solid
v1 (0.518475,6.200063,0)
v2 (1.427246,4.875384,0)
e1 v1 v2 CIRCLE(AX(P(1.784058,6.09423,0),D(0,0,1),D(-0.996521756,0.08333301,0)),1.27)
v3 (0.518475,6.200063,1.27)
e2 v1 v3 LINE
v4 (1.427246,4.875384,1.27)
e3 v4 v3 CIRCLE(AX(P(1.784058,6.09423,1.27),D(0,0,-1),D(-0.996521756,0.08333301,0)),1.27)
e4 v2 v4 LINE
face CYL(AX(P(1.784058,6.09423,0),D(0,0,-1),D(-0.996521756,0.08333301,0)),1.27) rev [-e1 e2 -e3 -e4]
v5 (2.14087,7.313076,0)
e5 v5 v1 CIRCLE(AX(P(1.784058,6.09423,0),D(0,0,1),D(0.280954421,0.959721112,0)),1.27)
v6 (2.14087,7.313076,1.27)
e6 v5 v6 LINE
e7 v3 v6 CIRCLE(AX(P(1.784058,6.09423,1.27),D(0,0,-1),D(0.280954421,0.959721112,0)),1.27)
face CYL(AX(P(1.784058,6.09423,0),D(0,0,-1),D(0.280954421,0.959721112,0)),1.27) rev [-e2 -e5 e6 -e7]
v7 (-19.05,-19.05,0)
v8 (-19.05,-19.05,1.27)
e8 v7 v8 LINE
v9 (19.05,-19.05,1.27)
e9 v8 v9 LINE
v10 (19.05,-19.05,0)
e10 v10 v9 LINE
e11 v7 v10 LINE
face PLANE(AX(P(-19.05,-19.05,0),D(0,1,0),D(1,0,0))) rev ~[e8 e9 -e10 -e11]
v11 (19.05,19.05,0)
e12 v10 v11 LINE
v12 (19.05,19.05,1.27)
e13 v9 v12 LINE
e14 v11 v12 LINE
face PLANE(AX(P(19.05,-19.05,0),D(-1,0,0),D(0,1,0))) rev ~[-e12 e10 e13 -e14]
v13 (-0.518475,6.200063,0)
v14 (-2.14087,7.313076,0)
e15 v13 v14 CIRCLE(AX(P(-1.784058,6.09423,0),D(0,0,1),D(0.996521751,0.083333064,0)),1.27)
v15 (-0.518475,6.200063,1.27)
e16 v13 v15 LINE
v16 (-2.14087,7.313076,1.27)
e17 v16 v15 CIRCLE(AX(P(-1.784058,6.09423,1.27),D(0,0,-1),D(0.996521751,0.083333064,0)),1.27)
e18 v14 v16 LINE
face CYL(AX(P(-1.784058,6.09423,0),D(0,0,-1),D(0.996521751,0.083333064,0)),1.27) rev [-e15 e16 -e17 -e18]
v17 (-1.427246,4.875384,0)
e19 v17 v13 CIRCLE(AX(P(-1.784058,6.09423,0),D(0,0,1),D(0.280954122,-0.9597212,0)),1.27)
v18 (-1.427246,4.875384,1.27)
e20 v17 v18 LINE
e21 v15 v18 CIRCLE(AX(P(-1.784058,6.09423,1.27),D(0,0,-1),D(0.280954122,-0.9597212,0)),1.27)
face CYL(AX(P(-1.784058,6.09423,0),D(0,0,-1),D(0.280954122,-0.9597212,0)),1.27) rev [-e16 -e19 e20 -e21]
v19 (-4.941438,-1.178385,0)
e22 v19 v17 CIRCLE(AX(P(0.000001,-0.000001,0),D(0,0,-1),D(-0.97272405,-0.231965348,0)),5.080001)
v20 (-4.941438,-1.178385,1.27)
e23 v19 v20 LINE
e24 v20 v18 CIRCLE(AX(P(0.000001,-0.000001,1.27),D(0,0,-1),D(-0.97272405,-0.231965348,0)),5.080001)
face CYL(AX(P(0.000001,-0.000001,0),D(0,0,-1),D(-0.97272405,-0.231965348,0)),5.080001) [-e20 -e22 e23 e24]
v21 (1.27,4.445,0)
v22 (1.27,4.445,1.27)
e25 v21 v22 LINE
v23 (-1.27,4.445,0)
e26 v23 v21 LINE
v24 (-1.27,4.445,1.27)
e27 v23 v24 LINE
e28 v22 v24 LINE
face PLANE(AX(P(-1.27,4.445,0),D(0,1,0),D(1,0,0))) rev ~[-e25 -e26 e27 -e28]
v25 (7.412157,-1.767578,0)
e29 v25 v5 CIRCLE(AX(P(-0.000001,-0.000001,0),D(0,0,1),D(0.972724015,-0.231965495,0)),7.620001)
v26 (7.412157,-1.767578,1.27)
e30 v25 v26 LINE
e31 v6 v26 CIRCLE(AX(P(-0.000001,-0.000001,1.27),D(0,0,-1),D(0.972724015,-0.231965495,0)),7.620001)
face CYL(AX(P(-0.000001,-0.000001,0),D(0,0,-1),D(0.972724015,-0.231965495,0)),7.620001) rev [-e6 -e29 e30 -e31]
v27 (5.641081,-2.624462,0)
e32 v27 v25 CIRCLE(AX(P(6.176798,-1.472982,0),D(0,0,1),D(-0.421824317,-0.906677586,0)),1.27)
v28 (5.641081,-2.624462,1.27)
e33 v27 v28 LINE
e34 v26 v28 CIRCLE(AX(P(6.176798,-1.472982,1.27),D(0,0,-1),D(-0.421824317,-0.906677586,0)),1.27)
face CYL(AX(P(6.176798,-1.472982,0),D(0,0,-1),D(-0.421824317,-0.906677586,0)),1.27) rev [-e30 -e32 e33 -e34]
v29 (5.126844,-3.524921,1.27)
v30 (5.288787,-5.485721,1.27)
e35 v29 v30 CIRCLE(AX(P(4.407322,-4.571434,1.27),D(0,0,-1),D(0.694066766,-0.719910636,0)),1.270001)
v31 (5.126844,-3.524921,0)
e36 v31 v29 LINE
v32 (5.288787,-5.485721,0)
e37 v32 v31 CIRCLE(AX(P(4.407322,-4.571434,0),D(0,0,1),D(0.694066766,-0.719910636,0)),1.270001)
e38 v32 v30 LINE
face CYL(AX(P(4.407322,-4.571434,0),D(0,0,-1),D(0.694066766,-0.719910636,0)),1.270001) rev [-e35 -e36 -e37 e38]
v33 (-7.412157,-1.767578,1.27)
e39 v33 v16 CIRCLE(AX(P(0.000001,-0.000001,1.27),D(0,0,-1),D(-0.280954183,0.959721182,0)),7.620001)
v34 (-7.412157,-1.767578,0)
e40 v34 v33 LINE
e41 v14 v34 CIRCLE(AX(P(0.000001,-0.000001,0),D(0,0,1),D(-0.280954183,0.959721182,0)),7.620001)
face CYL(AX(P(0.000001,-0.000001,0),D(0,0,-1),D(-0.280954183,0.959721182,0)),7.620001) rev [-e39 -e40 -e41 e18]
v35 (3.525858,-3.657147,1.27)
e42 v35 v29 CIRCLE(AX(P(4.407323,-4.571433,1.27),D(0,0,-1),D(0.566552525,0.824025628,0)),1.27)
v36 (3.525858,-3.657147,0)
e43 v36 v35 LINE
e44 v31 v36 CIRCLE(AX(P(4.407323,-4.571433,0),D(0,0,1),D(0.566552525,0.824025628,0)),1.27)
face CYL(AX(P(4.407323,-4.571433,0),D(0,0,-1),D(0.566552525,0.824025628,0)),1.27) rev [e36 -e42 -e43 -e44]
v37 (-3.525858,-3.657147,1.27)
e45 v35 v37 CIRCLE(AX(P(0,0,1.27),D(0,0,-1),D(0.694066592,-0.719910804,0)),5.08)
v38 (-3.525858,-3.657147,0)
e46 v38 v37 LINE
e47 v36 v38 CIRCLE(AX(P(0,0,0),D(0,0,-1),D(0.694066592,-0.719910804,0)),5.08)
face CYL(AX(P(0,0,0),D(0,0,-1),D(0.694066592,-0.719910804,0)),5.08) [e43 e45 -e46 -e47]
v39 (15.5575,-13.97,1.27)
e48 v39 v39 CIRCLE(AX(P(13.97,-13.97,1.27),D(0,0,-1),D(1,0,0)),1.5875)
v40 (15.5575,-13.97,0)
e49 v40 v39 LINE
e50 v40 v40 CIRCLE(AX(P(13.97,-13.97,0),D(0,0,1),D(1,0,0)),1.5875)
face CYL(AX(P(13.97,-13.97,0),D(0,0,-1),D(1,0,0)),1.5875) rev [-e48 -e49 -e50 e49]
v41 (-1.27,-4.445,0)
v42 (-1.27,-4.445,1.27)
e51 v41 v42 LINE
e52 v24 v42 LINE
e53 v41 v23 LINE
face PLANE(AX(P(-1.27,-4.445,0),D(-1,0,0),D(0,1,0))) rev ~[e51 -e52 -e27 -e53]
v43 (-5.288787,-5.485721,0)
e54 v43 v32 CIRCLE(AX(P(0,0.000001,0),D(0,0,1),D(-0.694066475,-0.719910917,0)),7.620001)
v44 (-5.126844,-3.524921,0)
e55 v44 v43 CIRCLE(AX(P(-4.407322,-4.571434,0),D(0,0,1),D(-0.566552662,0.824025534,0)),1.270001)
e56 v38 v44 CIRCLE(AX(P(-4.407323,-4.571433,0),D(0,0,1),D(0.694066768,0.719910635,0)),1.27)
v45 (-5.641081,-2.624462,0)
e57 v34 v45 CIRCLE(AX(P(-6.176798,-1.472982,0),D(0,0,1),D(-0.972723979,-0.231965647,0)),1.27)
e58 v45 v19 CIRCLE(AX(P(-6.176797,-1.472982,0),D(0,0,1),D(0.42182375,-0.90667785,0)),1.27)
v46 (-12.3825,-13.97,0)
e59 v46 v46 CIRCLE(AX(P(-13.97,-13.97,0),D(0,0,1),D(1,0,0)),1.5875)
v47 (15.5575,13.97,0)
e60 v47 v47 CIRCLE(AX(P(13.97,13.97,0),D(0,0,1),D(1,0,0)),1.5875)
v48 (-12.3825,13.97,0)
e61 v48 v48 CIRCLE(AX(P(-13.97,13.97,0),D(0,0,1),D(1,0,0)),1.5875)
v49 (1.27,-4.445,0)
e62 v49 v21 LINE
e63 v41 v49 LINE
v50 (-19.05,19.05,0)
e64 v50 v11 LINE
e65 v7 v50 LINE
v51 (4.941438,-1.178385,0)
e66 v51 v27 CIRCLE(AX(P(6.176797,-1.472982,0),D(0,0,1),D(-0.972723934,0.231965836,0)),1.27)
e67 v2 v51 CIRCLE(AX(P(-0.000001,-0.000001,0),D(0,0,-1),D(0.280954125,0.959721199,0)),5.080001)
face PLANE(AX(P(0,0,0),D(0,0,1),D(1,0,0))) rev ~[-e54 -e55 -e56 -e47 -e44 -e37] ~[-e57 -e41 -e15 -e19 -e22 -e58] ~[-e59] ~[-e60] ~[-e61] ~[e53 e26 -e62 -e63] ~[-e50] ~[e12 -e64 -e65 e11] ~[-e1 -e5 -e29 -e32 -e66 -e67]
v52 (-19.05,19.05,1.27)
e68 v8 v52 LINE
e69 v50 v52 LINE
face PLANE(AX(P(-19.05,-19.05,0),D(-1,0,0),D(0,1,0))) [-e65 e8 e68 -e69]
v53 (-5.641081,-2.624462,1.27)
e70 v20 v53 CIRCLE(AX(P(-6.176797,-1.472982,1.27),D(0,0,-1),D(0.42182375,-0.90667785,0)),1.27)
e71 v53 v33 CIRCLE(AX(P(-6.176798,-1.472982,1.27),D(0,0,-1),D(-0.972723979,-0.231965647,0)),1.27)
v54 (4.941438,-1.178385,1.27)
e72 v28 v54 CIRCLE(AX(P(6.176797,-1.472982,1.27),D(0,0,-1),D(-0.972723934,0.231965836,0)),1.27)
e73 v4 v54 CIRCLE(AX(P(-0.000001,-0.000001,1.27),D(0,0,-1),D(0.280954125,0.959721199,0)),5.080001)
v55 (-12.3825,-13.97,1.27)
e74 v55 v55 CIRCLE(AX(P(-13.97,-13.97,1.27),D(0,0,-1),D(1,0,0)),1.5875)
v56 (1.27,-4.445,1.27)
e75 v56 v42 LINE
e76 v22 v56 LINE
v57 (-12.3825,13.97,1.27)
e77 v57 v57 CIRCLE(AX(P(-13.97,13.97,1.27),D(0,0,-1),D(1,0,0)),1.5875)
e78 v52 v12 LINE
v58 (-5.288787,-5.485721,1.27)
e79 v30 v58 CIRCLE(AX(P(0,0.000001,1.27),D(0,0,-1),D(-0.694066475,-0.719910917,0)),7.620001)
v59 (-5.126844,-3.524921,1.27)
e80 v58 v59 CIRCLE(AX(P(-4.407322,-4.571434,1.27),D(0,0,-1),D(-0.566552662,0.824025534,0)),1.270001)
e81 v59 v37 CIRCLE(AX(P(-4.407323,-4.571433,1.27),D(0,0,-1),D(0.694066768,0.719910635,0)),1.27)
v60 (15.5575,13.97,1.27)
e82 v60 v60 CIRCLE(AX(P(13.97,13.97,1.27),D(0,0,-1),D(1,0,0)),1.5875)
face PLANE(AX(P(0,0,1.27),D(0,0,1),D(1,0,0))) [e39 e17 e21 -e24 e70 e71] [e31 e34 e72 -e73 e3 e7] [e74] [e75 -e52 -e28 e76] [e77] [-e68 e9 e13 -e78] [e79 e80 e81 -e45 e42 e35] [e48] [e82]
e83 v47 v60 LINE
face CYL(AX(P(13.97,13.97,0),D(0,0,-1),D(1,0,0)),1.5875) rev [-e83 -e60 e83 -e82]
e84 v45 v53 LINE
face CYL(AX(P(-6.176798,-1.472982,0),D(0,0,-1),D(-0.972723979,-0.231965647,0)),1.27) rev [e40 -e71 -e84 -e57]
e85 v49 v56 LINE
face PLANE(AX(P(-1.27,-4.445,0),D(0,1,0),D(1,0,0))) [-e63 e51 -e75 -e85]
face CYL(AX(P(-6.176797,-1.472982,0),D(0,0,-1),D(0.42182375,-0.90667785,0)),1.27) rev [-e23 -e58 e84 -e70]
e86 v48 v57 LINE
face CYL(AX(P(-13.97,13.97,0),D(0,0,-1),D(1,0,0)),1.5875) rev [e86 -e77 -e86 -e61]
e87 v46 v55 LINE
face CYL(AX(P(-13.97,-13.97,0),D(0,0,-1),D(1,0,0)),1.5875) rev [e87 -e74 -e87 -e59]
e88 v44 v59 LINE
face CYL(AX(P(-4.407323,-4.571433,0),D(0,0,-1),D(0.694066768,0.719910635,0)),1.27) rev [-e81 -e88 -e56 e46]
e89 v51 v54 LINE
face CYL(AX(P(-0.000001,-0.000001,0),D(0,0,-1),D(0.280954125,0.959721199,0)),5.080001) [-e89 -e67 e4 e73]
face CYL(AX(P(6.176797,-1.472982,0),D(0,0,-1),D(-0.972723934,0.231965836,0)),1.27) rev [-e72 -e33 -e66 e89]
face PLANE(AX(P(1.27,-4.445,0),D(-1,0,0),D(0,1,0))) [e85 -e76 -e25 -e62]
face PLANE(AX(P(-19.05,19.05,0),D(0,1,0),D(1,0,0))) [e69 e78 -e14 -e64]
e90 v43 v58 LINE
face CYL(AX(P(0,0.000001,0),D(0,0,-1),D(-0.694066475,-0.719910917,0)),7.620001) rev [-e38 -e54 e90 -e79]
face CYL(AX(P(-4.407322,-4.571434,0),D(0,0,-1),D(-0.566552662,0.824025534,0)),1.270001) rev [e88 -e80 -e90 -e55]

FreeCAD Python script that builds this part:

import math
import FreeCAD as App
import Part
import Sketcher
Q = App.Units.Quantity

doc = App.newDocument("Part")
body = doc.addObject("PartDesign::Body", "Body")

# Sketch on XY plane
sketch1 = body.newObject("Sketcher::SketchObject", "Sketch")
sketch1.AttachmentSupport = (doc.getObject("XY_Plane"), [""])
sketch1.MapMode = "FlatFace"
sketch1.addGeometry(Part.LineSegment(App.Vector(-19.05, 19.05, 0), App.Vector(-19.05, -19.05, 0)), False)
sketch1.addGeometry(Part.LineSegment(App.Vector(-19.05, -19.05, 0), App.Vector(19.05, -19.05, 0)), False)
sketch1.addGeometry(Part.LineSegment(App.Vector(19.05, -19.05, 0), App.Vector(19.05, 19.05, 0)), False)
sketch1.addGeometry(Part.LineSegment(App.Vector(19.05, 19.05, 0), App.Vector(-19.05, 19.05, 0)), False)
sketch1.addConstraint(Sketcher.Constraint("Coincident", 0, 2, 1, 1))
sketch1.addConstraint(Sketcher.Constraint("Coincident", 1, 2, 2, 1))
sketch1.addConstraint(Sketcher.Constraint("Coincident", 2, 2, 3, 1))
sketch1.addConstraint(Sketcher.Constraint("Coincident", 3, 2, 0, 1))
sketch1.addConstraint(Sketcher.Constraint("Vertical", 0))
sketch1.addConstraint(Sketcher.Constraint("Horizontal", 1))
sketch1.addConstraint(Sketcher.Constraint("Vertical", 2))
sketch1.addConstraint(Sketcher.Constraint("Horizontal", 3))
sketch1.addConstraint(Sketcher.Constraint("Symmetric", 0, 2, 2, 2, -1, 1))
sketch1.addConstraint(Sketcher.Constraint("Equal", 3, 0))
sketch1.addConstraint(Sketcher.Constraint("DistanceX", 1, 1, 1, 2, Q("1.5 in")))
pad1 = body.newObject("PartDesign::Pad", "Pad")
pad1.Profile = sketch1
pad1.Length = Q("0.05 in")

# Sketch on XY plane
sketch2 = body.newObject("Sketcher::SketchObject", "Sketch001")
sketch2.AttachmentSupport = (doc.getObject("XY_Plane"), [""])
sketch2.MapMode = "FlatFace"
sketch2.addGeometry(Part.ArcOfCircle(Part.Circle(App.Vector(-1.784058, 6.09423, 0), App.Vector(0, 0, 1), 1.27), math.radians(4.780176), math.radians(106.317176)), False)
sketch2.addGeometry(Part.ArcOfCircle(Part.Circle(App.Vector(0.000001, -0.000001, 0), App.Vector(0, 0, 1), 7.620001), math.radians(106.317162), math.radians(193.412816)), False)
sketch2.addGeometry(Part.ArcOfCircle(Part.Circle(App.Vector(-6.176798, -1.472982, 0), App.Vector(0, 0, 1), 1.27), math.radians(-166.587175), math.radians(-65.050182)), False)
sketch2.addGeometry(Part.ArcOfCircle(Part.Circle(App.Vector(-6.176797, -1.472982, 0), App.Vector(0, 0, 1), 1.27), math.radians(-65.050218), math.radians(13.412836)), False)
sketch2.addGeometry(Part.ArcOfCircle(Part.Circle(App.Vector(0.000001, -0.000001, 0), App.Vector(0, 0, 1), 5.080001), math.radians(106.317158), math.radians(193.412808)), False)
sketch2.addGeometry(Part.ArcOfCircle(Part.Circle(App.Vector(-1.784058, 6.09423, 0), App.Vector(0, 0, 1), 1.27), math.radians(-73.682842), math.radians(4.780173)), False)
sketch2.addGeometry(Part.ArcOfCircle(Part.Circle(App.Vector(6.176798, -1.472982, 0), App.Vector(0, 0, 1), 1.27), math.radians(-114.949818), math.radians(-13.412825)), False)
sketch2.addGeometry(Part.ArcOfCircle(Part.Circle(App.Vector(-0.000001, -0.000001, 0), App.Vector(0, 0, 1), 7.620001), math.radians(-13.412816), math.radians(73.682838)), False)
sketch2.addGeometry(Part.ArcOfCircle(Part.Circle(App.Vector(1.784058, 6.09423, 0), App.Vector(0, 0, 1), 1.27), math.radians(73.682824), math.radians(175.219824)), False)
sketch2.addGeometry(Part.ArcOfCircle(Part.Circle(App.Vector(1.784058, 6.09423, 0), App.Vector(0, 0, 1), 1.27), math.radians(175.219827), math.radians(253.682842)), False)
sketch2.addGeometry(Part.ArcOfCircle(Part.Circle(App.Vector(-0.000001, -0.000001, 0), App.Vector(0, 0, 1), 5.080001), math.radians(-13.412808), math.radians(73.682842)), False)
sketch2.addGeometry(Part.ArcOfCircle(Part.Circle(App.Vector(6.176797, -1.472982, 0), App.Vector(0, 0, 1), 1.27), math.radians(166.587164), math.radians(245.050218)), False)
sketch2.addGeometry(Part.ArcOfCircle(Part.Circle(App.Vector(-4.407322, -4.571434, 0), App.Vector(0, 0, 1), 1.270001), math.radians(124.510181), math.radians(226.047103)), False)
sketch2.addGeometry(Part.ArcOfCircle(Part.Circle(App.Vector(0, 0.000001, 0), App.Vector(0, 0, 1), 7.620001), math.radians(-133.952874), math.radians(-46.047126)), False)
sketch2.addGeometry(Part.ArcOfCircle(Part.Circle(App.Vector(4.407322, -4.571434, 0), App.Vector(0, 0, 1), 1.270001), math.radians(-46.047103), math.radians(55.489819)), False)
sketch2.addGeometry(Part.ArcOfCircle(Part.Circle(App.Vector(4.407323, -4.571433, 0), App.Vector(0, 0, 1), 1.27), math.radians(55.489829), math.radians(133.952897)), False)
sketch2.addGeometry(Part.ArcOfCircle(Part.Circle(App.Vector(0, 0, 0), App.Vector(0, 0, 1), 5.08), math.radians(-133.952883), math.radians(-46.047117)), False)
sketch2.addGeometry(Part.ArcOfCircle(Part.Circle(App.Vector(-4.407323, -4.571433, 0), App.Vector(0, 0, 1), 1.27), math.radians(46.047103), math.radians(124.510171)), False)
sketch2.addConstraint(Sketcher.Constraint("Tangent", 0, 2, 1, 1))
sketch2.addConstraint(Sketcher.Constraint("Tangent", 1, 2, 2, 1))
sketch2.addConstraint(Sketcher.Constraint("Tangent", 2, 2, 3, 1))
sketch2.addConstraint(Sketcher.Constraint("Tangent", 3, 2, 4, 2))
sketch2.addConstraint(Sketcher.Constraint("Tangent", 4, 1, 5, 1))
sketch2.addConstraint(Sketcher.Constraint("Tangent", 5, 2, 0, 1))
sketch2.addConstraint(Sketcher.Constraint("Tangent", 6, 2, 7, 1))
sketch2.addConstraint(Sketcher.Constraint("Tangent", 7, 2, 8, 1))
sketch2.addConstraint(Sketcher.Constraint("Tangent", 8, 2, 9, 1))
sketch2.addConstraint(Sketcher.Constraint("Tangent", 9, 2, 10, 2))
sketch2.addConstraint(Sketcher.Constraint("Tangent", 10, 1, 11, 1))
sketch2.addConstraint(Sketcher.Constraint("Tangent", 11, 2, 6, 1))
sketch2.addConstraint(Sketcher.Constraint("Tangent", 12, 2, 13, 1))
sketch2.addConstraint(Sketcher.Constraint("Tangent", 13, 2, 14, 1))
sketch2.addConstraint(Sketcher.Constraint("Tangent", 14, 2, 15, 1))
sketch2.addConstraint(Sketcher.Constraint("Tangent", 15, 2, 16, 2))
sketch2.addConstraint(Sketcher.Constraint("Tangent", 16, 1, 17, 1))
sketch2.addConstraint(Sketcher.Constraint("Tangent", 17, 2, 12, 1))
sketch2.addConstraint(Sketcher.Constraint("Coincident", 1, 3, -1, 1))
sketch2.addConstraint(Sketcher.Constraint("Coincident", 4, 3, -1, 1))
sketch2.addConstraint(Sketcher.Constraint("Coincident", 7, 3, -1, 1))
sketch2.addConstraint(Sketcher.Constraint("Coincident", 10, 3, -1, 1))
sketch2.addConstraint(Sketcher.Constraint("Coincident", 13, 3, -1, 1))
sketch2.addConstraint(Sketcher.Constraint("Coincident", 16, 3, -1, 1))
sketch2.addConstraint(Sketcher.Constraint("Equal", 0, 2))
sketch2.addConstraint(Sketcher.Constraint("Equal", 2, 3))
sketch2.addConstraint(Sketcher.Constraint("Equal", 5, 6))
sketch2.addConstraint(Sketcher.Constraint("Equal", 1, 7))
sketch2.addConstraint(Sketcher.Constraint("Equal", 6, 8))
sketch2.addConstraint(Sketcher.Constraint("Equal", 8, 9))
sketch2.addConstraint(Sketcher.Constraint("Equal", 11, 12))
sketch2.addConstraint(Sketcher.Constraint("Equal", 7, 13))
sketch2.addConstraint(Sketcher.Constraint("Equal", 12, 14))
sketch2.addConstraint(Sketcher.Constraint("Equal", 14, 15))
sketch2.addConstraint(Sketcher.Constraint("Symmetric", 5, 2, 8, 2, -2))
sketch2.addConstraint(Sketcher.Constraint("Symmetric", 2, 2, 11, 2, -2))
sketch2.addConstraint(Sketcher.Constraint("Symmetric", 14, 2, 17, 2, -2))
sketch2.addConstraint(Sketcher.Constraint("Radius", 1, Q("0.3000001 in")))
sketch2.addConstraint(Sketcher.Constraint("Radius", 4, Q("0.2 in")))
sketch2.addConstraint(Sketcher.Constraint("DistanceX", 2, 3, 1, 3, Q("6.176799 mm")))
sketch2.addConstraint(Sketcher.Constraint("DistanceY", 13, 2, 14, 2, Q("1.9608 mm")))
sketch2.addConstraint(Sketcher.Constraint("DistanceY", -1, 1, 0, 3, Q("6.09423 mm")))
sketch2.addConstraint(Sketcher.Constraint("DistanceX", 12, 3, -1, 1, Q("4.407322 mm")))
sketch2.addConstraint(Sketcher.Constraint("DistanceX", 2, 2, -1, 1, Q("5.641081 mm")))
sketch2.addConstraint(Sketcher.Constraint("DistanceX", 4, 1, 5, 2, Q("0.908771 mm")))
pocket1 = body.newObject("PartDesign::Pocket", "Pocket")
pocket1.Profile = sketch2
pocket1.Length = Q("1 in")
pocket1.Reversed = True

# Sketch on XY plane
sketch3 = body.newObject("Sketcher::SketchObject", "Sketch002")
sketch3.AttachmentSupport = (doc.getObject("XY_Plane"), [""])
sketch3.MapMode = "FlatFace"
sketch3.addGeometry(Part.Circle(App.Vector(13.97, 13.97, 0), App.Vector(0, 0, 1), 1.5875), False)
sketch3.addGeometry(Part.Circle(App.Vector(13.97, -13.97, 0), App.Vector(0, 0, 1), 1.5875), False)
sketch3.addGeometry(Part.Circle(App.Vector(-13.97, -13.97, 0), App.Vector(0, 0, 1), 1.5875), False)
sketch3.addGeometry(Part.Circle(App.Vector(-13.97, 13.97, 0), App.Vector(0, 0, 1), 1.5875), False)
sketch3.addGeometry(Part.LineSegment(App.Vector(-1.27, 4.445, 0), App.Vector(-1.27, -4.445, 0)), False)
sketch3.addGeometry(Part.LineSegment(App.Vector(-1.27, -4.445, 0), App.Vector(1.27, -4.445, 0)), False)
sketch3.addGeometry(Part.LineSegment(App.Vector(1.27, -4.445, 0), App.Vector(1.27, 4.445, 0)), False)
sketch3.addGeometry(Part.LineSegment(App.Vector(1.27, 4.445, 0), App.Vector(-1.27, 4.445, 0)), False)
sketch3.addConstraint(Sketcher.Constraint("Coincident", 4, 2, 5, 1))
sketch3.addConstraint(Sketcher.Constraint("Coincident", 5, 2, 6, 1))
sketch3.addConstraint(Sketcher.Constraint("Coincident", 6, 2, 7, 1))
sketch3.addConstraint(Sketcher.Constraint("Coincident", 7, 2, 4, 1))
sketch3.addConstraint(Sketcher.Constraint("Vertical", 4))
sketch3.addConstraint(Sketcher.Constraint("Horizontal", 5))
sketch3.addConstraint(Sketcher.Constraint("Vertical", 6))
sketch3.addConstraint(Sketcher.Constraint("Horizontal", 7))
sketch3.addConstraint(Sketcher.Constraint("Equal", 0, 1))
sketch3.addConstraint(Sketcher.Constraint("Equal", 1, 2))
sketch3.addConstraint(Sketcher.Constraint("Equal", 2, 3))
sketch3.addConstraint(Sketcher.Constraint("Symmetric", 0, 3, 2, 3, -1, 1))
sketch3.addConstraint(Sketcher.Constraint("Symmetric", 1, 3, 3, 3, -1, 1))
sketch3.addConstraint(Sketcher.Constraint("Symmetric", 4, 2, 6, 2, -1, 1))
sketch3.addConstraint(Sketcher.Constraint("Symmetric", 1, 3, 2, 3, -2))
sketch3.addConstraint(Sketcher.Constraint("Diameter", 0, Q("0.125 in")))
sketch3.addConstraint(Sketcher.Constraint("DistanceX", 5, 1, 5, 2, Q("0.1 in")))
sketch3.addConstraint(Sketcher.Constraint("DistanceY", 4, 2, 4, 1, Q("0.35 in")))
sketch3.addConstraint(Sketcher.Constraint("DistanceY", 1, 3, 0, 3, Q("1.1 in")))
sketch3.addConstraint(Sketcher.Constraint("DistanceX", 2, 3, 1, 3, Q("1.1 in")))
pocket2 = body.newObject("PartDesign::Pocket", "Pocket001")
pocket2.Profile = sketch3
pocket2.Length = Q("1 in")
pocket2.Reversed = True

doc.recompute()
